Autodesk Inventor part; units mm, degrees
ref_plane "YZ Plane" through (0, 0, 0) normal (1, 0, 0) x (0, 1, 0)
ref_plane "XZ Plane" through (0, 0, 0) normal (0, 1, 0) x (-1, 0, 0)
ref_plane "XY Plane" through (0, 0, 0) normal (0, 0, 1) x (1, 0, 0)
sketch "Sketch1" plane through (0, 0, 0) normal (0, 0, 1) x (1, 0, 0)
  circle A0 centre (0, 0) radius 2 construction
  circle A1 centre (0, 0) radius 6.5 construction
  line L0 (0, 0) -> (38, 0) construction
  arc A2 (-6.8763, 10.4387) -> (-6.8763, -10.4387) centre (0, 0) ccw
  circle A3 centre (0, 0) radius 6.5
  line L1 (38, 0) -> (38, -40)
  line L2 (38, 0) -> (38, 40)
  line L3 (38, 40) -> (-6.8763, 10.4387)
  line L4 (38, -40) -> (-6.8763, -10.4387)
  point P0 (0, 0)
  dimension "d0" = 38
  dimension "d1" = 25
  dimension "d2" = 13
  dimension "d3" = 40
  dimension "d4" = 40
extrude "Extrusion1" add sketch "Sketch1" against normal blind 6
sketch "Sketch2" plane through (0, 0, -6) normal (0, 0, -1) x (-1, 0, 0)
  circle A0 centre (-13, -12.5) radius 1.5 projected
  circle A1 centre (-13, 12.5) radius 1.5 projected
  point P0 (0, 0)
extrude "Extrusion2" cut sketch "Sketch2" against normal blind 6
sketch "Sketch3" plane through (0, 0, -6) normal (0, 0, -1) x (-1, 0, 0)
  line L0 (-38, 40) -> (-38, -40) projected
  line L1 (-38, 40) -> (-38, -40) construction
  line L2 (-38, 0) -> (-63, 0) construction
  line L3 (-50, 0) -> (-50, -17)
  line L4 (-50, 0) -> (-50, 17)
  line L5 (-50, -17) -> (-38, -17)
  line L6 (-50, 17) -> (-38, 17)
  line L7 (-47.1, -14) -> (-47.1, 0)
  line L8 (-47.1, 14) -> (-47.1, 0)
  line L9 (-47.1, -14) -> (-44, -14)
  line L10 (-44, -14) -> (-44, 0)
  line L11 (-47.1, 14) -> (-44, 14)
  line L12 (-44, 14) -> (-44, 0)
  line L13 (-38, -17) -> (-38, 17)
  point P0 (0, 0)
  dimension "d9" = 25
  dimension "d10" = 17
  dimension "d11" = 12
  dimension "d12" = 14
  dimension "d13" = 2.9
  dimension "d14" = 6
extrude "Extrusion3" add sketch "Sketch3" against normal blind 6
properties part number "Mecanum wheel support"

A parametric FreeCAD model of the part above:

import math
import FreeCAD as App
import Part
import Sketcher
from FreeCAD import Vector
Q = App.Units.Quantity


def add_polygon(sketch, points):
    """Adds a closed chain of lines whose ends are joined by coincident constraints."""
    first, n = sketch.GeometryCount, len(points)
    for a, b in zip(points, points[1:] + points[:1]):
        sketch.addGeometry(Part.LineSegment(App.Vector(*a, 0), App.Vector(*b, 0)), False)
    for i in range(n):
        sketch.addConstraint(Sketcher.Constraint("Coincident", first + i, 2, first + (i + 1) % n, 1))

doc = App.newDocument("Part")
params = doc.addObject("Spreadsheet::Sheet", "Params")
for row, (alias, value) in enumerate([
    ("sketch1_diameter", "13 mm"),
    ("sketch1_radius", "12.5 mm"),
    ("pad1_length", "6 mm"),
    ("sketch2_diameter", "3 mm"),
    ("pocket1_length", "6 mm"),
    ("sketch3_width", "12 mm"),
    ("pad2_length", "6 mm"),
], start=1):
    params.set(f"A{row}", alias)
    params.set(f"B{row}", "=" + value)
    params.setAlias(f"B{row}", alias)

body = doc.addObject("PartDesign::Body", "Body")

sketch1 = body.newObject("Sketcher::SketchObject", "Sketch")
sketch1.AttachmentSupport = (doc.getObject("XY_Plane"), [""])
sketch1.MapMode = "FlatFace"
sketch1.addGeometry([
    Part.LineSegment(Vector(38, 40, 0), Vector(-7, 10, 0)),
    Part.ArcOfCircle(Part.Circle(Vector(0, 0, 0), Vector(0, 0, 1), 12), math.radians(123), math.radians(237)),
    Part.LineSegment(Vector(-7, -10, 0), Vector(38, -40, 0)),
    Part.LineSegment(Vector(38, -40, 0), Vector(38, 40, 0)),
    Part.Circle(Vector(0, 0, 0), Vector(0, 0, 1), 6),
], False)
sketch1.addConstraint([
    Sketcher.Constraint("Tangent", 0, 2, 1, 1),
    Sketcher.Constraint("Tangent", 1, 2, 2, 1),
    Sketcher.Constraint("Coincident", 2, 2, 3, 1),
    Sketcher.Constraint("Coincident", 3, 2, 0, 1),
    Sketcher.Constraint("Vertical", 3),
    Sketcher.Constraint("Coincident", 1, 3, -1, 1),
    Sketcher.Constraint("Coincident", 4, 3, -1, 1),
    Sketcher.Constraint("Vertical", 0, 2, 1, 2),
    Sketcher.Constraint("Diameter", 4, Q("13 mm")),
    Sketcher.Constraint("Radius", 1, Q("12.5 mm")),
    Sketcher.Constraint("DistanceX", -1, 1, 2, 2, Q("38 mm")),
    Sketcher.Constraint("DistanceY", 2, 2, -1, 1, Q("40 mm")),
])
sketch1.setExpression("Constraints[8]", "Params.sketch1_diameter")
sketch1.setExpression("Constraints[9]", "Params.sketch1_radius")
pad1 = body.newObject("PartDesign::Pad", "Pad")
pad1.Profile = sketch1
pad1.setExpression("Length", "Params.pad1_length")
pad1.Reversed = True

sketch2 = body.newObject("Sketcher::SketchObject", "Sketch001")
sketch2.AttachmentSupport = (doc.getObject("XY_Plane"), [""])
sketch2.MapMode = "FlatFace"
sketch2.AttachmentOffset = App.Placement(Vector(0, 0, -6), App.Rotation())
sketch2.addGeometry([
    Part.Circle(Vector(13, -12.5, 0), Vector(0, 0, 1), 1.5),
    Part.Circle(Vector(13, 12.5, 0), Vector(0, 0, 1), 1.5),
], False)
sketch2.addConstraint([
    Sketcher.Constraint("Equal", 0, 1),
    Sketcher.Constraint("Symmetric", 0, 3, 1, 3, -1),
    Sketcher.Constraint("Diameter", 0, Q("3 mm")),
    Sketcher.Constraint("DistanceX", -1, 1, 0, 3, Q("13 mm")),
    Sketcher.Constraint("DistanceY", 0, 3, 1, 3, Q("25 mm")),
])
sketch2.setExpression("Constraints[2]", "Params.sketch2_diameter")
pocket1 = body.newObject("PartDesign::Pocket", "Pocket")
pocket1.Profile = sketch2
pocket1.setExpression("Length", "Params.pocket1_length")
pocket1.Reversed = True

sketch3 = body.newObject("Sketcher::SketchObject", "Sketch002")
sketch3.AttachmentSupport = (doc.getObject("XY_Plane"), [""])
sketch3.MapMode = "FlatFace"
sketch3.AttachmentOffset = App.Placement(Vector(0, 0, -6), App.Rotation())
add_polygon(sketch3, [(38, -17), (38, 17), (50, 17), (50, -17)])
add_polygon(sketch3, [(44, -14), (47.1, -14), (47.1, 14), (44, 14)])
sketch3.addConstraint([
    Sketcher.Constraint("Vertical", 0),
    Sketcher.Constraint("Horizontal", 1),
    Sketcher.Constraint("Vertical", 2),
    Sketcher.Constraint("Horizontal", 3),
    Sketcher.Constraint("Horizontal", 4),
    Sketcher.Constraint("Vertical", 5),
    Sketcher.Constraint("Horizontal", 6),
    Sketcher.Constraint("Vertical", 7),
    Sketcher.Constraint("DistanceX", 1, 1, 1, 2, Q("12 mm")),
    Sketcher.Constraint("DistanceY", -1, 1, 0, 2, Q("17 mm")),
    Sketcher.Constraint("DistanceY", 2, 2, -1, 1, Q("17 mm")),
    Sketcher.Constraint("DistanceY", 4, 2, -1, 1, Q("14 mm")),
    Sketcher.Constraint("DistanceY", -1, 1, 5, 2, Q("14 mm")),
    Sketcher.Constraint("DistanceX", 0, 2, 6, 2, Q("6 mm")),
    Sketcher.Constraint("DistanceX", 4, 2, 2, 2, Q("2.9 mm")),
    Sketcher.Constraint("DistanceX", -1, 1, 0, 2, Q("38 mm")),
])
sketch3.setExpression("Constraints[16]", "Params.sketch3_width")
pad2 = body.newObject("PartDesign::Pad", "Pad001")
pad2.Profile = sketch3
pad2.setExpression("Length", "Params.pad2_length")

doc.recompute()
